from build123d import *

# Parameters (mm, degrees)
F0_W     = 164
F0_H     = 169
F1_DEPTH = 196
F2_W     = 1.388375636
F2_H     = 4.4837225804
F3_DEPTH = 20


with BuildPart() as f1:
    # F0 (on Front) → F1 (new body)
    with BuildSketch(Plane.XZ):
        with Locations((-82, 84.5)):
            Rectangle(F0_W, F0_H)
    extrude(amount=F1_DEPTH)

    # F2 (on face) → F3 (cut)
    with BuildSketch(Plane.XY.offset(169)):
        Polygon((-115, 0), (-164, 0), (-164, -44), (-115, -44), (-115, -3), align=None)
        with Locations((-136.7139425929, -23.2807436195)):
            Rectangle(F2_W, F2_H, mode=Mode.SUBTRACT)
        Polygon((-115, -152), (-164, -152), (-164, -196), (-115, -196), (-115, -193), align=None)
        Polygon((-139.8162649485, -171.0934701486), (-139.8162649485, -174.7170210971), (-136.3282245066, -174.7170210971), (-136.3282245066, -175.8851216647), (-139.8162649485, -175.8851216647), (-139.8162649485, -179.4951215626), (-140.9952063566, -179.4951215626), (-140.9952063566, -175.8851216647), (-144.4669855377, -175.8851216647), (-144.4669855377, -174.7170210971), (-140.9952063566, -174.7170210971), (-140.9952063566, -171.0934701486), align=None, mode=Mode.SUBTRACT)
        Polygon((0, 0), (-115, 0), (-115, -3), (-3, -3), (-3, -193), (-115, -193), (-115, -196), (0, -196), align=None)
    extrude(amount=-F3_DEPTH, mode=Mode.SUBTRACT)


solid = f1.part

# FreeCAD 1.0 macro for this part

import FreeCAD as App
import Part
import Sketcher
from FreeCAD import Vector

doc = App.newDocument("Part")
body = doc.addObject("PartDesign::Body", "Body")

# Sketch on XZ plane
sketch1 = body.newObject("Sketcher::SketchObject", "Sketch")
sketch1.AttachmentSupport = (doc.getObject("XZ_Plane"), [""])
sketch1.MapMode = "FlatFace"
sketch1.addGeometry(Part.LineSegment(Vector(-164, 169, 0), Vector(-164, 0, 0)), False)
sketch1.addGeometry(Part.LineSegment(Vector(-164, 0, 0), Vector(0, 0, 0)), False)
sketch1.addGeometry(Part.LineSegment(Vector(0, 0, 0), Vector(0, 169, 0)), False)
sketch1.addGeometry(Part.LineSegment(Vector(0, 169, 0), Vector(-164, 169, 0)), False)
sketch1.addConstraint(Sketcher.Constraint("Coincident", 0, 2, 1, 1))
sketch1.addConstraint(Sketcher.Constraint("Coincident", 1, 2, 2, 1))
sketch1.addConstraint(Sketcher.Constraint("Coincident", 2, 2, 3, 1))
sketch1.addConstraint(Sketcher.Constraint("Coincident", 3, 2, 0, 1))
sketch1.addConstraint(Sketcher.Constraint("Vertical", 0))
sketch1.addConstraint(Sketcher.Constraint("Horizontal", 1))
sketch1.addConstraint(Sketcher.Constraint("Vertical", 2))
sketch1.addConstraint(Sketcher.Constraint("Horizontal", 3))
sketch1.addConstraint(Sketcher.Constraint("Coincident", 1, 2, -1, 1))
sketch1.addConstraint(Sketcher.Constraint("DistanceX", 1, 1, 1, 2, 164.0))
sketch1.addConstraint(Sketcher.Constraint("DistanceY", 0, 2, 0, 1, 169.0))
pad1 = body.newObject("PartDesign::Pad", "Pad")
pad1.Profile = sketch1
pad1.Length = 196

# Sketch on XY plane
sketch2 = body.newObject("Sketcher::SketchObject", "Sketch001")
sketch2.AttachmentSupport = (doc.getObject("XY_Plane"), [""])
sketch2.MapMode = "FlatFace"
sketch2.AttachmentOffset = App.Placement(Vector(0, 0, 169), App.Rotation())
sketch2.addGeometry(Part.LineSegment(Vector(-164, 0, 0), Vector(-164, -44, 0)), False)
sketch2.addGeometry(Part.LineSegment(Vector(-164, -44, 0), Vector(-115, -44, 0)), False)
sketch2.addGeometry(Part.LineSegment(Vector(-115, -44, 0), Vector(-115, -3, 0)), False)
sketch2.addGeometry(Part.LineSegment(Vector(-115, -3, 0), Vector(-3, -3, 0)), False)
sketch2.addGeometry(Part.LineSegment(Vector(-3, -3, 0), Vector(-3, -193, 0)), False)
sketch2.addGeometry(Part.LineSegment(Vector(-3, -193, 0), Vector(-115, -193, 0)), False)
sketch2.addGeometry(Part.LineSegment(Vector(-115, -193, 0), Vector(-115, -152, 0)), False)
sketch2.addGeometry(Part.LineSegment(Vector(-115, -152, 0), Vector(-164, -152, 0)), False)
sketch2.addGeometry(Part.LineSegment(Vector(-164, -152, 0), Vector(-164, -196, 0)), False)
sketch2.addGeometry(Part.LineSegment(Vector(-164, -196, 0), Vector(0, -196, 0)), False)
sketch2.addGeometry(Part.LineSegment(Vector(0, -196, 0), Vector(0, 0, 0)), False)
sketch2.addGeometry(Part.LineSegment(Vector(0, 0, 0), Vector(-164, 0, 0)), False)
sketch2.addGeometry(Part.LineSegment(Vector(-136.019755, -25.522605, 0), Vector(-137.40813, -25.522605, 0)), False)
sketch2.addGeometry(Part.LineSegment(Vector(-137.40813, -25.522605, 0), Vector(-137.40813, -21.038882, 0)), False)
sketch2.addGeometry(Part.LineSegment(Vector(-137.40813, -21.038882, 0), Vector(-136.019755, -21.038882, 0)), False)
sketch2.addGeometry(Part.LineSegment(Vector(-136.019755, -21.038882, 0), Vector(-136.019755, -25.522605, 0)), False)
sketch2.addGeometry(Part.LineSegment(Vector(-139.816265, -171.09347, 0), Vector(-139.816265, -174.717021, 0)), False)
sketch2.addGeometry(Part.LineSegment(Vector(-139.816265, -174.717021, 0), Vector(-136.328225, -174.717021, 0)), False)
sketch2.addGeometry(Part.LineSegment(Vector(-136.328225, -174.717021, 0), Vector(-136.328225, -175.885122, 0)), False)
sketch2.addGeometry(Part.LineSegment(Vector(-136.328225, -175.885122, 0), Vector(-139.816265, -175.885122, 0)), False)
sketch2.addGeometry(Part.LineSegment(Vector(-139.816265, -175.885122, 0), Vector(-139.816265, -179.495122, 0)), False)
sketch2.addGeometry(Part.LineSegment(Vector(-139.816265, -179.495122, 0), Vector(-140.995206, -179.495122, 0)), False)
sketch2.addGeometry(Part.LineSegment(Vector(-140.995206, -179.495122, 0), Vector(-140.995206, -175.885122, 0)), False)
sketch2.addGeometry(Part.LineSegment(Vector(-140.995206, -175.885122, 0), Vector(-144.466986, -175.885122, 0)), False)
sketch2.addGeometry(Part.LineSegment(Vector(-144.466986, -175.885122, 0), Vector(-144.466986, -174.717021, 0)), False)
sketch2.addGeometry(Part.LineSegment(Vector(-144.466986, -174.717021, 0), Vector(-140.995206, -174.717021, 0)), False)
sketch2.addGeometry(Part.LineSegment(Vector(-140.995206, -174.717021, 0), Vector(-140.995206, -171.09347, 0)), False)
sketch2.addGeometry(Part.LineSegment(Vector(-140.995206, -171.09347, 0), Vector(-139.816265, -171.09347, 0)), False)
sketch2.addConstraint(Sketcher.Constraint("Coincident", 0, 2, 1, 1))
sketch2.addConstraint(Sketcher.Constraint("Coincident", 1, 2, 2, 1))
sketch2.addConstraint(Sketcher.Constraint("Coincident", 2, 2, 3, 1))
sketch2.addConstraint(Sketcher.Constraint("Coincident", 3, 2, 4, 1))
sketch2.addConstraint(Sketcher.Constraint("Coincident", 4, 2, 5, 1))
sketch2.addConstraint(Sketcher.Constraint("Coincident", 5, 2, 6, 1))
sketch2.addConstraint(Sketcher.Constraint("Coincident", 6, 2, 7, 1))
sketch2.addConstraint(Sketcher.Constraint("Coincident", 7, 2, 8, 1))
sketch2.addConstraint(Sketcher.Constraint("Coincident", 8, 2, 9, 1))
sketch2.addConstraint(Sketcher.Constraint("Coincident", 9, 2, 10, 1))
sketch2.addConstraint(Sketcher.Constraint("Coincident", 10, 2, 11, 1))
sketch2.addConstraint(Sketcher.Constraint("Coincident", 11, 2, 0, 1))
sketch2.addConstraint(Sketcher.Constraint("Coincident", 12, 2, 13, 1))
sketch2.addConstraint(Sketcher.Constraint("Coincident", 13, 2, 14, 1))
sketch2.addConstraint(Sketcher.Constraint("Coincident", 14, 2, 15, 1))
sketch2.addConstraint(Sketcher.Constraint("Coincident", 15, 2, 12, 1))
sketch2.addConstraint(Sketcher.Constraint("Coincident", 16, 2, 17, 1))
sketch2.addConstraint(Sketcher.Constraint("Coincident", 17, 2, 18, 1))
sketch2.addConstraint(Sketcher.Constraint("Coincident", 18, 2, 19, 1))
sketch2.addConstraint(Sketcher.Constraint("Coincident", 19, 2, 20, 1))
sketch2.addConstraint(Sketcher.Constraint("Coincident", 20, 2, 21, 1))
sketch2.addConstraint(Sketcher.Constraint("Coincident", 21, 2, 22, 1))
sketch2.addConstraint(Sketcher.Constraint("Coincident", 22, 2, 23, 1))
sketch2.addConstraint(Sketcher.Constraint("Coincident", 23, 2, 24, 1))
sketch2.addConstraint(Sketcher.Constraint("Coincident", 24, 2, 25, 1))
sketch2.addConstraint(Sketcher.Constraint("Coincident", 25, 2, 26, 1))
sketch2.addConstraint(Sketcher.Constraint("Coincident", 26, 2, 27, 1))
sketch2.addConstraint(Sketcher.Constraint("Coincident", 27, 2, 16, 1))
sketch2.addConstraint(Sketcher.Constraint("Vertical", 0))
sketch2.addConstraint(Sketcher.Constraint("Horizontal", 1))
sketch2.addConstraint(Sketcher.Constraint("Vertical", 2))
sketch2.addConstraint(Sketcher.Constraint("Horizontal", 3))
sketch2.addConstraint(Sketcher.Constraint("Vertical", 4))
sketch2.addConstraint(Sketcher.Constraint("Horizontal", 5))
sketch2.addConstraint(Sketcher.Constraint("Vertical", 6))
sketch2.addConstraint(Sketcher.Constraint("Horizontal", 7))
sketch2.addConstraint(Sketcher.Constraint("Vertical", 8))
sketch2.addConstraint(Sketcher.Constraint("Horizontal", 9))
sketch2.addConstraint(Sketcher.Constraint("Vertical", 10))
sketch2.addConstraint(Sketcher.Constraint("Horizontal", 11))
sketch2.addConstraint(Sketcher.Constraint("Horizontal", 12))
sketch2.addConstraint(Sketcher.Constraint("Vertical", 13))
sketch2.addConstraint(Sketcher.Constraint("Horizontal", 14))
sketch2.addConstraint(Sketcher.Constraint("Vertical", 15))
sketch2.addConstraint(Sketcher.Constraint("Vertical", 16))
sketch2.addConstraint(Sketcher.Constraint("Horizontal", 17))
sketch2.addConstraint(Sketcher.Constraint("Vertical", 18))
sketch2.addConstraint(Sketcher.Constraint("Horizontal", 19))
sketch2.addConstraint(Sketcher.Constraint("Vertical", 20))
sketch2.addConstraint(Sketcher.Constraint("Horizontal", 21))
sketch2.addConstraint(Sketcher.Constraint("Vertical", 22))
sketch2.addConstraint(Sketcher.Constraint("Horizontal", 23))
sketch2.addConstraint(Sketcher.Constraint("Vertical", 24))
sketch2.addConstraint(Sketcher.Constraint("Horizontal", 25))
sketch2.addConstraint(Sketcher.Constraint("Vertical", 26))
sketch2.addConstraint(Sketcher.Constraint("Horizontal", 27))
sketch2.addConstraint(Sketcher.Constraint("Coincident", 10, 2, -1, 1))
sketch2.addConstraint(Sketcher.Constraint("Horizontal", 19, 2, 22, 2))
sketch2.addConstraint(Sketcher.Constraint("Horizontal", 17, 2, 24, 2))
sketch2.addConstraint(Sketcher.Constraint("Vertical", 2, 2, 5, 2))
sketch2.addConstraint(Sketcher.Constraint("Vertical", 0, 2, 7, 2))
sketch2.addConstraint(Sketcher.Constraint("Vertical", 16, 2, 19, 2))
sketch2.addConstraint(Sketcher.Constraint("Vertical", 22, 2, 25, 2))
sketch2.addConstraint(Sketcher.Constraint("Equal", 2, 6))
sketch2.addConstraint(Sketcher.Constraint("Equal", 0, 8))
sketch2.addConstraint(Sketcher.Constraint("DistanceX", 1, 1, 1, 2, 49.0))
sketch2.addConstraint(Sketcher.Constraint("DistanceX", 3, 1, 3, 2, 112.0))
sketch2.addConstraint(Sketcher.Constraint("DistanceX", 9, 1, 9, 2, 164.0))
sketch2.addConstraint(Sketcher.Constraint("DistanceY", 0, 2, 0, 1, 44.0))
sketch2.addConstraint(Sketcher.Constraint("DistanceY", 2, 1, 2, 2, 41.0))
sketch2.addConstraint(Sketcher.Constraint("DistanceY", 4, 2, 4, 1, 190.0))
sketch2.addConstraint(Sketcher.Constraint("DistanceY", 20, 2, 20, 1, 3.61))
sketch2.addConstraint(Sketcher.Constraint("DistanceY", 18, 2, 18, 1, 1.168101))
sketch2.addConstraint(Sketcher.Constraint("DistanceX", 17, 1, 17, 2, 3.48804))
sketch2.addConstraint(Sketcher.Constraint("DistanceX", 21, 2, 21, 1, 1.178941))
sketch2.addConstraint(Sketcher.Constraint("DistanceX", 23, 2, 23, 1, 3.471779))
sketch2.addConstraint(Sketcher.Constraint("DistanceY", 16, 2, 16, 1, 3.623551))
sketch2.addConstraint(Sketcher.Constraint("DistanceX", 12, 2, 12, 1, 1.388376))
sketch2.addConstraint(Sketcher.Constraint("DistanceY", 13, 1, 13, 2, 4.483723))
sketch2.addConstraint(Sketcher.Constraint("DistanceX", 12, 2, -1, 1, 137.40813))
sketch2.addConstraint(Sketcher.Constraint("DistanceY", 16, 2, -1, 1, 174.717021))
sketch2.addConstraint(Sketcher.Constraint("DistanceY", 12, 2, -1, 1, 25.522605))
sketch2.addConstraint(Sketcher.Constraint("DistanceX", 16, 2, -1, 1, 139.816265))
pocket1 = body.newObject("PartDesign::Pocket", "Pocket")
pocket1.Profile = sketch2
pocket1.Length = 20

doc.recompute()
